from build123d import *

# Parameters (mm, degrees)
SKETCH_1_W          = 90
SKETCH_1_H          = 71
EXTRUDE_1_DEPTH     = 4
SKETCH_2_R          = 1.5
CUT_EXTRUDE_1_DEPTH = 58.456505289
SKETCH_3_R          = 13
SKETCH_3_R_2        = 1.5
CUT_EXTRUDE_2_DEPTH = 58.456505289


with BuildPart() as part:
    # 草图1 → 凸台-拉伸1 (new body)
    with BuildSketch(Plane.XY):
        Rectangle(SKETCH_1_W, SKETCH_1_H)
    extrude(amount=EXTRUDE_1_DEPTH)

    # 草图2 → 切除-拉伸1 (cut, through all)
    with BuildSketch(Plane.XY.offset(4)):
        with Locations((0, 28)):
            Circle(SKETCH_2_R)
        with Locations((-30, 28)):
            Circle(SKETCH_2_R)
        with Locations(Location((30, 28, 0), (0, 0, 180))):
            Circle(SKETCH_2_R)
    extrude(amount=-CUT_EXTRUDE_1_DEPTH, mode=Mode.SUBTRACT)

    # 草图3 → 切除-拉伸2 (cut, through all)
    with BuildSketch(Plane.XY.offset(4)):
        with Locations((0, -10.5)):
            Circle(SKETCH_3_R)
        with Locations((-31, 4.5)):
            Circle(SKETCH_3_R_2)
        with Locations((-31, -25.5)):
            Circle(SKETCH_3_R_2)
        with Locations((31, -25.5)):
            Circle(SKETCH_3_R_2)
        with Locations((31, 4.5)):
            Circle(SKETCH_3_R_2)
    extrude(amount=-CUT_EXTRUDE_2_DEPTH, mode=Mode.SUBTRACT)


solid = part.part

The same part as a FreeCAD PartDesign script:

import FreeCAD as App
import Part
import Sketcher
Q = App.Units.Quantity

doc = App.newDocument("Part")
body = doc.addObject("PartDesign::Body", "Body")

# Sketch on XY plane
sketch1 = body.newObject("Sketcher::SketchObject", "Sketch")
sketch1.AttachmentSupport = (doc.getObject("XY_Plane"), [""])
sketch1.MapMode = "FlatFace"
sketch1.addGeometry(Part.LineSegment(App.Vector(-45, 35.5, 0), App.Vector(-45, -35.5, 0)), False)
sketch1.addGeometry(Part.LineSegment(App.Vector(-45, -35.5, 0), App.Vector(45, -35.5, 0)), False)
sketch1.addGeometry(Part.LineSegment(App.Vector(45, -35.5, 0), App.Vector(45, 35.5, 0)), False)
sketch1.addGeometry(Part.LineSegment(App.Vector(45, 35.5, 0), App.Vector(-45, 35.5, 0)), False)
sketch1.addConstraint(Sketcher.Constraint("Coincident", 0, 2, 1, 1))
sketch1.addConstraint(Sketcher.Constraint("Coincident", 1, 2, 2, 1))
sketch1.addConstraint(Sketcher.Constraint("Coincident", 2, 2, 3, 1))
sketch1.addConstraint(Sketcher.Constraint("Coincident", 3, 2, 0, 1))
sketch1.addConstraint(Sketcher.Constraint("Vertical", 0))
sketch1.addConstraint(Sketcher.Constraint("Horizontal", 1))
sketch1.addConstraint(Sketcher.Constraint("Vertical", 2))
sketch1.addConstraint(Sketcher.Constraint("Horizontal", 3))
sketch1.addConstraint(Sketcher.Constraint("Symmetric", 0, 2, 2, 2, -1, 1))
sketch1.addConstraint(Sketcher.Constraint("DistanceX", 1, 1, 1, 2, Q("90 mm")))
sketch1.addConstraint(Sketcher.Constraint("DistanceY", 0, 2, 0, 1, Q("71 mm")))
pad1 = body.newObject("PartDesign::Pad", "Pad")
pad1.Profile = sketch1
pad1.Length = 4

# Sketch on XY plane
sketch2 = body.newObject("Sketcher::SketchObject", "Sketch001")
sketch2.AttachmentSupport = (doc.getObject("XY_Plane"), [""])
sketch2.MapMode = "FlatFace"
sketch2.AttachmentOffset = App.Placement(App.Vector(0, 0, 4), App.Rotation())
sketch2.addGeometry(Part.Circle(App.Vector(0, 28, 0), App.Vector(0, 0, 1), 1.5), False)
sketch2.addGeometry(Part.Circle(App.Vector(-30, 28, 0), App.Vector(0, 0, 1), 1.5), False)
sketch2.addGeometry(Part.Circle(App.Vector(30, 28, 0), App.Vector(0, 0, 1), 1.5), False)
sketch2.addConstraint(Sketcher.Constraint("Equal", 0, 1))
sketch2.addConstraint(Sketcher.Constraint("Equal", 1, 2))
sketch2.addConstraint(Sketcher.Constraint("Symmetric", 1, 3, 2, 3, -2))
sketch2.addConstraint(Sketcher.Constraint("PointOnObject", 0, 3, -2))
sketch2.addConstraint(Sketcher.Constraint("Horizontal", 0, 3, 1, 3))
sketch2.addConstraint(Sketcher.Constraint("Diameter", 0, Q("3 mm")))
sketch2.addConstraint(Sketcher.Constraint("DistanceY", -1, 1, 0, 3, Q("28 mm")))
sketch2.addConstraint(Sketcher.Constraint("DistanceX", 1, 3, -1, 1, Q("30 mm")))
pocket1 = body.newObject("PartDesign::Pocket", "Pocket")
pocket1.Profile = sketch2
pocket1.Type = "ThroughAll"

# Sketch on XY plane
sketch3 = body.newObject("Sketcher::SketchObject", "Sketch002")
sketch3.AttachmentSupport = (doc.getObject("XY_Plane"), [""])
sketch3.MapMode = "FlatFace"
sketch3.AttachmentOffset = App.Placement(App.Vector(0, 0, 4), App.Rotation())
sketch3.addGeometry(Part.Circle(App.Vector(0, -10.5, 0), App.Vector(0, 0, 1), 13), False)
sketch3.addGeometry(Part.Circle(App.Vector(-31, 4.5, 0), App.Vector(0, 0, 1), 1.5), False)
sketch3.addGeometry(Part.Circle(App.Vector(-31, -25.5, 0), App.Vector(0, 0, 1), 1.5), False)
sketch3.addGeometry(Part.Circle(App.Vector(31, -25.5, 0), App.Vector(0, 0, 1), 1.5), False)
sketch3.addGeometry(Part.Circle(App.Vector(31, 4.5, 0), App.Vector(0, 0, 1), 1.5), False)
sketch3.addConstraint(Sketcher.Constraint("Equal", 1, 2))
sketch3.addConstraint(Sketcher.Constraint("Equal", 2, 3))
sketch3.addConstraint(Sketcher.Constraint("Equal", 3, 4))
sketch3.addConstraint(Sketcher.Constraint("Symmetric", 2, 3, 3, 3, -2))
sketch3.addConstraint(Sketcher.Constraint("Symmetric", 1, 3, 4, 3, -2))
sketch3.addConstraint(Sketcher.Constraint("PointOnObject", 0, 3, -2))
sketch3.addConstraint(Sketcher.Constraint("Vertical", 1, 3, 2, 3))
sketch3.addConstraint(Sketcher.Constraint("Diameter", 0, Q("26 mm")))
sketch3.addConstraint(Sketcher.Constraint("Diameter", 1, Q("3 mm")))
sketch3.addConstraint(Sketcher.Constraint("DistanceX", 1, 3, -1, 1, Q("31 mm")))
sketch3.addConstraint(Sketcher.Constraint("DistanceY", 0, 3, 1, 3, Q("15 mm")))
sketch3.addConstraint(Sketcher.Constraint("DistanceY", 2, 3, 1, 3, Q("30 mm")))
sketch3.addConstraint(Sketcher.Constraint("DistanceY", 0, 3, -1, 1, Q("10.5 mm")))
pocket2 = body.newObject("PartDesign::Pocket", "Pocket001")
pocket2.Profile = sketch3
pocket2.Type = "ThroughAll"

doc.recompute()
